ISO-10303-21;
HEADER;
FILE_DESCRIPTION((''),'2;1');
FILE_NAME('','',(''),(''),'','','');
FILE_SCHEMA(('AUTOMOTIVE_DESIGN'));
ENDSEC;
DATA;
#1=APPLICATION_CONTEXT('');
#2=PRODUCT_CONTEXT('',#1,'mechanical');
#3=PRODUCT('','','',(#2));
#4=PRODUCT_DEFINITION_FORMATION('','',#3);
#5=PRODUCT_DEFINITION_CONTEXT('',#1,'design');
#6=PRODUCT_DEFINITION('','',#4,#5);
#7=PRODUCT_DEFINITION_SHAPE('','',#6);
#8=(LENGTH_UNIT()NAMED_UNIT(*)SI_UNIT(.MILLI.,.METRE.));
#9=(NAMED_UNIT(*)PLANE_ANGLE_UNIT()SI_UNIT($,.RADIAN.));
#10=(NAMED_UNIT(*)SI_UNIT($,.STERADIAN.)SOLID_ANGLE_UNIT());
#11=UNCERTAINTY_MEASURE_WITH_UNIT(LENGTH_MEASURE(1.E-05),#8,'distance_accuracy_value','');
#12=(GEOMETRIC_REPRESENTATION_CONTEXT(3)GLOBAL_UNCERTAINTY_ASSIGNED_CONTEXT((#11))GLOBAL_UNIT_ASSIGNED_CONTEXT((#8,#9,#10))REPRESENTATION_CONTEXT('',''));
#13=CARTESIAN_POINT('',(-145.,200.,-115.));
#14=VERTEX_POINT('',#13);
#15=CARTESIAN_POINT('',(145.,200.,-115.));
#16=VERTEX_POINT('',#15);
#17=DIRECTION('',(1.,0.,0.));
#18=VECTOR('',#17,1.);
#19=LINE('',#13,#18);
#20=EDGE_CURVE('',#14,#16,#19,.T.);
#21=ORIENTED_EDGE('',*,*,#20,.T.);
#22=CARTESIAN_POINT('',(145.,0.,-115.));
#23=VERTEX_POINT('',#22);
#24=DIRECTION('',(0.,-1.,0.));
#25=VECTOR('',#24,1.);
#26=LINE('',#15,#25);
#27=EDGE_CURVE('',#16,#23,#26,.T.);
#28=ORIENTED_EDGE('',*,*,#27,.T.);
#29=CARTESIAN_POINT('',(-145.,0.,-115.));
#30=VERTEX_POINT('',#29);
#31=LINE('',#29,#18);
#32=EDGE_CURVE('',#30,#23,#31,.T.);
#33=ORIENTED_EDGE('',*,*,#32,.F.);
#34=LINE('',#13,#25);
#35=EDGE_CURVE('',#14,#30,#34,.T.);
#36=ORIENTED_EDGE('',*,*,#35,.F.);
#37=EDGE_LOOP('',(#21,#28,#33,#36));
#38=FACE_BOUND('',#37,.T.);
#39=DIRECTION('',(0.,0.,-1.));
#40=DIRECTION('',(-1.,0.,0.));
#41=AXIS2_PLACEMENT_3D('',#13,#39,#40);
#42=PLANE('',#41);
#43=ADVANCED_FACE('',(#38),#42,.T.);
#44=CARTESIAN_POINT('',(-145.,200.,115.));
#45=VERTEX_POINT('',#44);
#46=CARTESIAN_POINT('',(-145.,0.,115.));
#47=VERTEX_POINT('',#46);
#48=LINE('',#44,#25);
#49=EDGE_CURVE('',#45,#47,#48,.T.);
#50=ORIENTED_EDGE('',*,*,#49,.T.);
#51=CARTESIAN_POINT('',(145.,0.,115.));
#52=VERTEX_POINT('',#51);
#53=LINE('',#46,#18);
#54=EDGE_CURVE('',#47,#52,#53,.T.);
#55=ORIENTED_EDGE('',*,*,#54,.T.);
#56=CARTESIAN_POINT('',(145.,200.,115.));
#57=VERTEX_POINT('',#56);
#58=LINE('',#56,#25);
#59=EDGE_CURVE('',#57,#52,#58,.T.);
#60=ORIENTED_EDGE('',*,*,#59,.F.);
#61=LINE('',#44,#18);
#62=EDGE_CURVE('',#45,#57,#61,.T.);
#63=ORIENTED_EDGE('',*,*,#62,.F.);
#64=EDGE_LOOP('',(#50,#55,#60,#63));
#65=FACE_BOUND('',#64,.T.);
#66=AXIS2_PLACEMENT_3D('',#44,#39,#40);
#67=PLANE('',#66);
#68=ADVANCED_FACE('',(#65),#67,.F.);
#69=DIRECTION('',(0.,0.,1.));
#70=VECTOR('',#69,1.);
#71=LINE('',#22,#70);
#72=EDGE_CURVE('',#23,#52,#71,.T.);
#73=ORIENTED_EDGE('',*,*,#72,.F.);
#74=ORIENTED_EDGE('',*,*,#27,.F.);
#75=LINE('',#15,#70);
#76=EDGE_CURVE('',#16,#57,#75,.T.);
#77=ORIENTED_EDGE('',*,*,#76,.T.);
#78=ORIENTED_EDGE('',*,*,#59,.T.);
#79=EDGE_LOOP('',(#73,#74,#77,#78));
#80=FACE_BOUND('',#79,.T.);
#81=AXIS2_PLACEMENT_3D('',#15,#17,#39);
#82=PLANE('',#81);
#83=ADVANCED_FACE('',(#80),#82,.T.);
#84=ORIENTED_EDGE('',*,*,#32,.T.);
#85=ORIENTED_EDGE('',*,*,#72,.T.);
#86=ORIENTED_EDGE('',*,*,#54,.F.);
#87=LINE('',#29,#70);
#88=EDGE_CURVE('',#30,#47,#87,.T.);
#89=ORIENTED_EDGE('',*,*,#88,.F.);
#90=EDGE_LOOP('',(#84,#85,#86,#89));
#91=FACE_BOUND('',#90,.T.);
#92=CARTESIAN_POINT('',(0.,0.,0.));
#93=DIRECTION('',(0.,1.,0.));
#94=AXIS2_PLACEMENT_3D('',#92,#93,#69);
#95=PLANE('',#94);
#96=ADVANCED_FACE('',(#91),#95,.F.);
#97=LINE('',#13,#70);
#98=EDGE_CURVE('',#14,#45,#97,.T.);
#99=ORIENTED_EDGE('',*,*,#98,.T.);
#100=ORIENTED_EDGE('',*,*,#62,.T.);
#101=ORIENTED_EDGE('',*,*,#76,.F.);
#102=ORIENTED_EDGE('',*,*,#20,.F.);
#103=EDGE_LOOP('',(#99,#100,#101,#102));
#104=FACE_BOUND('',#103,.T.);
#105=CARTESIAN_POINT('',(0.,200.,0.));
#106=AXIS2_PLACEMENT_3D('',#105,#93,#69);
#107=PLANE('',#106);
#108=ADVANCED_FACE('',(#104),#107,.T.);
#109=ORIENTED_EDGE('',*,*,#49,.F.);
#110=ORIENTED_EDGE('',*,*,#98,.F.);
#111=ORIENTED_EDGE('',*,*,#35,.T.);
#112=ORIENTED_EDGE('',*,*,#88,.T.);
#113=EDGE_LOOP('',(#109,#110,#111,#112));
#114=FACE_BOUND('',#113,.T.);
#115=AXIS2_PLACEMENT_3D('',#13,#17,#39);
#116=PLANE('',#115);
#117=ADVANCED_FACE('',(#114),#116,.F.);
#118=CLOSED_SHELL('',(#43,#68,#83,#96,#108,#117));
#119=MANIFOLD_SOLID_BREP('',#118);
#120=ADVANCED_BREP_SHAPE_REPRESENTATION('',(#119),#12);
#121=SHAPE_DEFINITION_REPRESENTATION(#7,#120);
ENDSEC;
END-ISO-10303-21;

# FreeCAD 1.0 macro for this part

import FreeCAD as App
import Part
import Sketcher

V = App.Vector
Q = App.Units.Quantity


def add_polygon(sketch, points):
    """Adds a closed chain of lines whose ends are joined by coincident constraints."""
    first, n = sketch.GeometryCount, len(points)
    for a, b in zip(points, points[1:] + points[:1]):
        sketch.addGeometry(Part.LineSegment(App.Vector(*a, 0), App.Vector(*b, 0)), False)
    for i in range(n):
        sketch.addConstraint(Sketcher.Constraint("Coincident", first + i, 2, first + (i + 1) % n, 1))

doc = App.newDocument("Part")
params = doc.addObject("Spreadsheet::Sheet", "Params")
for row, (alias, value) in enumerate([
    ("sketch1_width", "290 mm"),
    ("sketch1_height", "230 mm"),
    ("pad1_length", "200 mm"),
], start=1):
    params.set(f"A{row}", alias)
    params.set(f"B{row}", "=" + value)
    params.setAlias(f"B{row}", alias)

body = doc.addObject("PartDesign::Body", "Body")

# Sketch on XZ plane
sketch1 = body.newObject("Sketcher::SketchObject", "Sketch")
sketch1.AttachmentSupport = (doc.getObject("XZ_Plane"), [""])
sketch1.MapMode = "FlatFace"
add_polygon(sketch1, [(-145, -115), (-145, 115), (145, 115), (145, -115)])  # lines 0-3
sketch1.addConstraint(Sketcher.Constraint("Vertical", 0))
sketch1.addConstraint(Sketcher.Constraint("Horizontal", 1))
sketch1.addConstraint(Sketcher.Constraint("Vertical", 2))
sketch1.addConstraint(Sketcher.Constraint("Horizontal", 3))
sketch1.addConstraint(Sketcher.Constraint("Symmetric", 0, 2, 2, 2, -1, 1))
sketch1.addConstraint(Sketcher.Constraint("DistanceX", 1, 1, 1, 2, Q("290 mm")))
sketch1.addConstraint(Sketcher.Constraint("DistanceY", 0, 1, 0, 2, Q("230 mm")))
sketch1.setExpression("Constraints[9]", "Params.sketch1_width")
sketch1.setExpression("Constraints[10]", "Params.sketch1_height")
pad1 = body.newObject("PartDesign::Pad", "Pad")
pad1.Profile = sketch1
pad1.setExpression("Length", "Params.pad1_length")
pad1.Reversed = True

doc.recompute()
